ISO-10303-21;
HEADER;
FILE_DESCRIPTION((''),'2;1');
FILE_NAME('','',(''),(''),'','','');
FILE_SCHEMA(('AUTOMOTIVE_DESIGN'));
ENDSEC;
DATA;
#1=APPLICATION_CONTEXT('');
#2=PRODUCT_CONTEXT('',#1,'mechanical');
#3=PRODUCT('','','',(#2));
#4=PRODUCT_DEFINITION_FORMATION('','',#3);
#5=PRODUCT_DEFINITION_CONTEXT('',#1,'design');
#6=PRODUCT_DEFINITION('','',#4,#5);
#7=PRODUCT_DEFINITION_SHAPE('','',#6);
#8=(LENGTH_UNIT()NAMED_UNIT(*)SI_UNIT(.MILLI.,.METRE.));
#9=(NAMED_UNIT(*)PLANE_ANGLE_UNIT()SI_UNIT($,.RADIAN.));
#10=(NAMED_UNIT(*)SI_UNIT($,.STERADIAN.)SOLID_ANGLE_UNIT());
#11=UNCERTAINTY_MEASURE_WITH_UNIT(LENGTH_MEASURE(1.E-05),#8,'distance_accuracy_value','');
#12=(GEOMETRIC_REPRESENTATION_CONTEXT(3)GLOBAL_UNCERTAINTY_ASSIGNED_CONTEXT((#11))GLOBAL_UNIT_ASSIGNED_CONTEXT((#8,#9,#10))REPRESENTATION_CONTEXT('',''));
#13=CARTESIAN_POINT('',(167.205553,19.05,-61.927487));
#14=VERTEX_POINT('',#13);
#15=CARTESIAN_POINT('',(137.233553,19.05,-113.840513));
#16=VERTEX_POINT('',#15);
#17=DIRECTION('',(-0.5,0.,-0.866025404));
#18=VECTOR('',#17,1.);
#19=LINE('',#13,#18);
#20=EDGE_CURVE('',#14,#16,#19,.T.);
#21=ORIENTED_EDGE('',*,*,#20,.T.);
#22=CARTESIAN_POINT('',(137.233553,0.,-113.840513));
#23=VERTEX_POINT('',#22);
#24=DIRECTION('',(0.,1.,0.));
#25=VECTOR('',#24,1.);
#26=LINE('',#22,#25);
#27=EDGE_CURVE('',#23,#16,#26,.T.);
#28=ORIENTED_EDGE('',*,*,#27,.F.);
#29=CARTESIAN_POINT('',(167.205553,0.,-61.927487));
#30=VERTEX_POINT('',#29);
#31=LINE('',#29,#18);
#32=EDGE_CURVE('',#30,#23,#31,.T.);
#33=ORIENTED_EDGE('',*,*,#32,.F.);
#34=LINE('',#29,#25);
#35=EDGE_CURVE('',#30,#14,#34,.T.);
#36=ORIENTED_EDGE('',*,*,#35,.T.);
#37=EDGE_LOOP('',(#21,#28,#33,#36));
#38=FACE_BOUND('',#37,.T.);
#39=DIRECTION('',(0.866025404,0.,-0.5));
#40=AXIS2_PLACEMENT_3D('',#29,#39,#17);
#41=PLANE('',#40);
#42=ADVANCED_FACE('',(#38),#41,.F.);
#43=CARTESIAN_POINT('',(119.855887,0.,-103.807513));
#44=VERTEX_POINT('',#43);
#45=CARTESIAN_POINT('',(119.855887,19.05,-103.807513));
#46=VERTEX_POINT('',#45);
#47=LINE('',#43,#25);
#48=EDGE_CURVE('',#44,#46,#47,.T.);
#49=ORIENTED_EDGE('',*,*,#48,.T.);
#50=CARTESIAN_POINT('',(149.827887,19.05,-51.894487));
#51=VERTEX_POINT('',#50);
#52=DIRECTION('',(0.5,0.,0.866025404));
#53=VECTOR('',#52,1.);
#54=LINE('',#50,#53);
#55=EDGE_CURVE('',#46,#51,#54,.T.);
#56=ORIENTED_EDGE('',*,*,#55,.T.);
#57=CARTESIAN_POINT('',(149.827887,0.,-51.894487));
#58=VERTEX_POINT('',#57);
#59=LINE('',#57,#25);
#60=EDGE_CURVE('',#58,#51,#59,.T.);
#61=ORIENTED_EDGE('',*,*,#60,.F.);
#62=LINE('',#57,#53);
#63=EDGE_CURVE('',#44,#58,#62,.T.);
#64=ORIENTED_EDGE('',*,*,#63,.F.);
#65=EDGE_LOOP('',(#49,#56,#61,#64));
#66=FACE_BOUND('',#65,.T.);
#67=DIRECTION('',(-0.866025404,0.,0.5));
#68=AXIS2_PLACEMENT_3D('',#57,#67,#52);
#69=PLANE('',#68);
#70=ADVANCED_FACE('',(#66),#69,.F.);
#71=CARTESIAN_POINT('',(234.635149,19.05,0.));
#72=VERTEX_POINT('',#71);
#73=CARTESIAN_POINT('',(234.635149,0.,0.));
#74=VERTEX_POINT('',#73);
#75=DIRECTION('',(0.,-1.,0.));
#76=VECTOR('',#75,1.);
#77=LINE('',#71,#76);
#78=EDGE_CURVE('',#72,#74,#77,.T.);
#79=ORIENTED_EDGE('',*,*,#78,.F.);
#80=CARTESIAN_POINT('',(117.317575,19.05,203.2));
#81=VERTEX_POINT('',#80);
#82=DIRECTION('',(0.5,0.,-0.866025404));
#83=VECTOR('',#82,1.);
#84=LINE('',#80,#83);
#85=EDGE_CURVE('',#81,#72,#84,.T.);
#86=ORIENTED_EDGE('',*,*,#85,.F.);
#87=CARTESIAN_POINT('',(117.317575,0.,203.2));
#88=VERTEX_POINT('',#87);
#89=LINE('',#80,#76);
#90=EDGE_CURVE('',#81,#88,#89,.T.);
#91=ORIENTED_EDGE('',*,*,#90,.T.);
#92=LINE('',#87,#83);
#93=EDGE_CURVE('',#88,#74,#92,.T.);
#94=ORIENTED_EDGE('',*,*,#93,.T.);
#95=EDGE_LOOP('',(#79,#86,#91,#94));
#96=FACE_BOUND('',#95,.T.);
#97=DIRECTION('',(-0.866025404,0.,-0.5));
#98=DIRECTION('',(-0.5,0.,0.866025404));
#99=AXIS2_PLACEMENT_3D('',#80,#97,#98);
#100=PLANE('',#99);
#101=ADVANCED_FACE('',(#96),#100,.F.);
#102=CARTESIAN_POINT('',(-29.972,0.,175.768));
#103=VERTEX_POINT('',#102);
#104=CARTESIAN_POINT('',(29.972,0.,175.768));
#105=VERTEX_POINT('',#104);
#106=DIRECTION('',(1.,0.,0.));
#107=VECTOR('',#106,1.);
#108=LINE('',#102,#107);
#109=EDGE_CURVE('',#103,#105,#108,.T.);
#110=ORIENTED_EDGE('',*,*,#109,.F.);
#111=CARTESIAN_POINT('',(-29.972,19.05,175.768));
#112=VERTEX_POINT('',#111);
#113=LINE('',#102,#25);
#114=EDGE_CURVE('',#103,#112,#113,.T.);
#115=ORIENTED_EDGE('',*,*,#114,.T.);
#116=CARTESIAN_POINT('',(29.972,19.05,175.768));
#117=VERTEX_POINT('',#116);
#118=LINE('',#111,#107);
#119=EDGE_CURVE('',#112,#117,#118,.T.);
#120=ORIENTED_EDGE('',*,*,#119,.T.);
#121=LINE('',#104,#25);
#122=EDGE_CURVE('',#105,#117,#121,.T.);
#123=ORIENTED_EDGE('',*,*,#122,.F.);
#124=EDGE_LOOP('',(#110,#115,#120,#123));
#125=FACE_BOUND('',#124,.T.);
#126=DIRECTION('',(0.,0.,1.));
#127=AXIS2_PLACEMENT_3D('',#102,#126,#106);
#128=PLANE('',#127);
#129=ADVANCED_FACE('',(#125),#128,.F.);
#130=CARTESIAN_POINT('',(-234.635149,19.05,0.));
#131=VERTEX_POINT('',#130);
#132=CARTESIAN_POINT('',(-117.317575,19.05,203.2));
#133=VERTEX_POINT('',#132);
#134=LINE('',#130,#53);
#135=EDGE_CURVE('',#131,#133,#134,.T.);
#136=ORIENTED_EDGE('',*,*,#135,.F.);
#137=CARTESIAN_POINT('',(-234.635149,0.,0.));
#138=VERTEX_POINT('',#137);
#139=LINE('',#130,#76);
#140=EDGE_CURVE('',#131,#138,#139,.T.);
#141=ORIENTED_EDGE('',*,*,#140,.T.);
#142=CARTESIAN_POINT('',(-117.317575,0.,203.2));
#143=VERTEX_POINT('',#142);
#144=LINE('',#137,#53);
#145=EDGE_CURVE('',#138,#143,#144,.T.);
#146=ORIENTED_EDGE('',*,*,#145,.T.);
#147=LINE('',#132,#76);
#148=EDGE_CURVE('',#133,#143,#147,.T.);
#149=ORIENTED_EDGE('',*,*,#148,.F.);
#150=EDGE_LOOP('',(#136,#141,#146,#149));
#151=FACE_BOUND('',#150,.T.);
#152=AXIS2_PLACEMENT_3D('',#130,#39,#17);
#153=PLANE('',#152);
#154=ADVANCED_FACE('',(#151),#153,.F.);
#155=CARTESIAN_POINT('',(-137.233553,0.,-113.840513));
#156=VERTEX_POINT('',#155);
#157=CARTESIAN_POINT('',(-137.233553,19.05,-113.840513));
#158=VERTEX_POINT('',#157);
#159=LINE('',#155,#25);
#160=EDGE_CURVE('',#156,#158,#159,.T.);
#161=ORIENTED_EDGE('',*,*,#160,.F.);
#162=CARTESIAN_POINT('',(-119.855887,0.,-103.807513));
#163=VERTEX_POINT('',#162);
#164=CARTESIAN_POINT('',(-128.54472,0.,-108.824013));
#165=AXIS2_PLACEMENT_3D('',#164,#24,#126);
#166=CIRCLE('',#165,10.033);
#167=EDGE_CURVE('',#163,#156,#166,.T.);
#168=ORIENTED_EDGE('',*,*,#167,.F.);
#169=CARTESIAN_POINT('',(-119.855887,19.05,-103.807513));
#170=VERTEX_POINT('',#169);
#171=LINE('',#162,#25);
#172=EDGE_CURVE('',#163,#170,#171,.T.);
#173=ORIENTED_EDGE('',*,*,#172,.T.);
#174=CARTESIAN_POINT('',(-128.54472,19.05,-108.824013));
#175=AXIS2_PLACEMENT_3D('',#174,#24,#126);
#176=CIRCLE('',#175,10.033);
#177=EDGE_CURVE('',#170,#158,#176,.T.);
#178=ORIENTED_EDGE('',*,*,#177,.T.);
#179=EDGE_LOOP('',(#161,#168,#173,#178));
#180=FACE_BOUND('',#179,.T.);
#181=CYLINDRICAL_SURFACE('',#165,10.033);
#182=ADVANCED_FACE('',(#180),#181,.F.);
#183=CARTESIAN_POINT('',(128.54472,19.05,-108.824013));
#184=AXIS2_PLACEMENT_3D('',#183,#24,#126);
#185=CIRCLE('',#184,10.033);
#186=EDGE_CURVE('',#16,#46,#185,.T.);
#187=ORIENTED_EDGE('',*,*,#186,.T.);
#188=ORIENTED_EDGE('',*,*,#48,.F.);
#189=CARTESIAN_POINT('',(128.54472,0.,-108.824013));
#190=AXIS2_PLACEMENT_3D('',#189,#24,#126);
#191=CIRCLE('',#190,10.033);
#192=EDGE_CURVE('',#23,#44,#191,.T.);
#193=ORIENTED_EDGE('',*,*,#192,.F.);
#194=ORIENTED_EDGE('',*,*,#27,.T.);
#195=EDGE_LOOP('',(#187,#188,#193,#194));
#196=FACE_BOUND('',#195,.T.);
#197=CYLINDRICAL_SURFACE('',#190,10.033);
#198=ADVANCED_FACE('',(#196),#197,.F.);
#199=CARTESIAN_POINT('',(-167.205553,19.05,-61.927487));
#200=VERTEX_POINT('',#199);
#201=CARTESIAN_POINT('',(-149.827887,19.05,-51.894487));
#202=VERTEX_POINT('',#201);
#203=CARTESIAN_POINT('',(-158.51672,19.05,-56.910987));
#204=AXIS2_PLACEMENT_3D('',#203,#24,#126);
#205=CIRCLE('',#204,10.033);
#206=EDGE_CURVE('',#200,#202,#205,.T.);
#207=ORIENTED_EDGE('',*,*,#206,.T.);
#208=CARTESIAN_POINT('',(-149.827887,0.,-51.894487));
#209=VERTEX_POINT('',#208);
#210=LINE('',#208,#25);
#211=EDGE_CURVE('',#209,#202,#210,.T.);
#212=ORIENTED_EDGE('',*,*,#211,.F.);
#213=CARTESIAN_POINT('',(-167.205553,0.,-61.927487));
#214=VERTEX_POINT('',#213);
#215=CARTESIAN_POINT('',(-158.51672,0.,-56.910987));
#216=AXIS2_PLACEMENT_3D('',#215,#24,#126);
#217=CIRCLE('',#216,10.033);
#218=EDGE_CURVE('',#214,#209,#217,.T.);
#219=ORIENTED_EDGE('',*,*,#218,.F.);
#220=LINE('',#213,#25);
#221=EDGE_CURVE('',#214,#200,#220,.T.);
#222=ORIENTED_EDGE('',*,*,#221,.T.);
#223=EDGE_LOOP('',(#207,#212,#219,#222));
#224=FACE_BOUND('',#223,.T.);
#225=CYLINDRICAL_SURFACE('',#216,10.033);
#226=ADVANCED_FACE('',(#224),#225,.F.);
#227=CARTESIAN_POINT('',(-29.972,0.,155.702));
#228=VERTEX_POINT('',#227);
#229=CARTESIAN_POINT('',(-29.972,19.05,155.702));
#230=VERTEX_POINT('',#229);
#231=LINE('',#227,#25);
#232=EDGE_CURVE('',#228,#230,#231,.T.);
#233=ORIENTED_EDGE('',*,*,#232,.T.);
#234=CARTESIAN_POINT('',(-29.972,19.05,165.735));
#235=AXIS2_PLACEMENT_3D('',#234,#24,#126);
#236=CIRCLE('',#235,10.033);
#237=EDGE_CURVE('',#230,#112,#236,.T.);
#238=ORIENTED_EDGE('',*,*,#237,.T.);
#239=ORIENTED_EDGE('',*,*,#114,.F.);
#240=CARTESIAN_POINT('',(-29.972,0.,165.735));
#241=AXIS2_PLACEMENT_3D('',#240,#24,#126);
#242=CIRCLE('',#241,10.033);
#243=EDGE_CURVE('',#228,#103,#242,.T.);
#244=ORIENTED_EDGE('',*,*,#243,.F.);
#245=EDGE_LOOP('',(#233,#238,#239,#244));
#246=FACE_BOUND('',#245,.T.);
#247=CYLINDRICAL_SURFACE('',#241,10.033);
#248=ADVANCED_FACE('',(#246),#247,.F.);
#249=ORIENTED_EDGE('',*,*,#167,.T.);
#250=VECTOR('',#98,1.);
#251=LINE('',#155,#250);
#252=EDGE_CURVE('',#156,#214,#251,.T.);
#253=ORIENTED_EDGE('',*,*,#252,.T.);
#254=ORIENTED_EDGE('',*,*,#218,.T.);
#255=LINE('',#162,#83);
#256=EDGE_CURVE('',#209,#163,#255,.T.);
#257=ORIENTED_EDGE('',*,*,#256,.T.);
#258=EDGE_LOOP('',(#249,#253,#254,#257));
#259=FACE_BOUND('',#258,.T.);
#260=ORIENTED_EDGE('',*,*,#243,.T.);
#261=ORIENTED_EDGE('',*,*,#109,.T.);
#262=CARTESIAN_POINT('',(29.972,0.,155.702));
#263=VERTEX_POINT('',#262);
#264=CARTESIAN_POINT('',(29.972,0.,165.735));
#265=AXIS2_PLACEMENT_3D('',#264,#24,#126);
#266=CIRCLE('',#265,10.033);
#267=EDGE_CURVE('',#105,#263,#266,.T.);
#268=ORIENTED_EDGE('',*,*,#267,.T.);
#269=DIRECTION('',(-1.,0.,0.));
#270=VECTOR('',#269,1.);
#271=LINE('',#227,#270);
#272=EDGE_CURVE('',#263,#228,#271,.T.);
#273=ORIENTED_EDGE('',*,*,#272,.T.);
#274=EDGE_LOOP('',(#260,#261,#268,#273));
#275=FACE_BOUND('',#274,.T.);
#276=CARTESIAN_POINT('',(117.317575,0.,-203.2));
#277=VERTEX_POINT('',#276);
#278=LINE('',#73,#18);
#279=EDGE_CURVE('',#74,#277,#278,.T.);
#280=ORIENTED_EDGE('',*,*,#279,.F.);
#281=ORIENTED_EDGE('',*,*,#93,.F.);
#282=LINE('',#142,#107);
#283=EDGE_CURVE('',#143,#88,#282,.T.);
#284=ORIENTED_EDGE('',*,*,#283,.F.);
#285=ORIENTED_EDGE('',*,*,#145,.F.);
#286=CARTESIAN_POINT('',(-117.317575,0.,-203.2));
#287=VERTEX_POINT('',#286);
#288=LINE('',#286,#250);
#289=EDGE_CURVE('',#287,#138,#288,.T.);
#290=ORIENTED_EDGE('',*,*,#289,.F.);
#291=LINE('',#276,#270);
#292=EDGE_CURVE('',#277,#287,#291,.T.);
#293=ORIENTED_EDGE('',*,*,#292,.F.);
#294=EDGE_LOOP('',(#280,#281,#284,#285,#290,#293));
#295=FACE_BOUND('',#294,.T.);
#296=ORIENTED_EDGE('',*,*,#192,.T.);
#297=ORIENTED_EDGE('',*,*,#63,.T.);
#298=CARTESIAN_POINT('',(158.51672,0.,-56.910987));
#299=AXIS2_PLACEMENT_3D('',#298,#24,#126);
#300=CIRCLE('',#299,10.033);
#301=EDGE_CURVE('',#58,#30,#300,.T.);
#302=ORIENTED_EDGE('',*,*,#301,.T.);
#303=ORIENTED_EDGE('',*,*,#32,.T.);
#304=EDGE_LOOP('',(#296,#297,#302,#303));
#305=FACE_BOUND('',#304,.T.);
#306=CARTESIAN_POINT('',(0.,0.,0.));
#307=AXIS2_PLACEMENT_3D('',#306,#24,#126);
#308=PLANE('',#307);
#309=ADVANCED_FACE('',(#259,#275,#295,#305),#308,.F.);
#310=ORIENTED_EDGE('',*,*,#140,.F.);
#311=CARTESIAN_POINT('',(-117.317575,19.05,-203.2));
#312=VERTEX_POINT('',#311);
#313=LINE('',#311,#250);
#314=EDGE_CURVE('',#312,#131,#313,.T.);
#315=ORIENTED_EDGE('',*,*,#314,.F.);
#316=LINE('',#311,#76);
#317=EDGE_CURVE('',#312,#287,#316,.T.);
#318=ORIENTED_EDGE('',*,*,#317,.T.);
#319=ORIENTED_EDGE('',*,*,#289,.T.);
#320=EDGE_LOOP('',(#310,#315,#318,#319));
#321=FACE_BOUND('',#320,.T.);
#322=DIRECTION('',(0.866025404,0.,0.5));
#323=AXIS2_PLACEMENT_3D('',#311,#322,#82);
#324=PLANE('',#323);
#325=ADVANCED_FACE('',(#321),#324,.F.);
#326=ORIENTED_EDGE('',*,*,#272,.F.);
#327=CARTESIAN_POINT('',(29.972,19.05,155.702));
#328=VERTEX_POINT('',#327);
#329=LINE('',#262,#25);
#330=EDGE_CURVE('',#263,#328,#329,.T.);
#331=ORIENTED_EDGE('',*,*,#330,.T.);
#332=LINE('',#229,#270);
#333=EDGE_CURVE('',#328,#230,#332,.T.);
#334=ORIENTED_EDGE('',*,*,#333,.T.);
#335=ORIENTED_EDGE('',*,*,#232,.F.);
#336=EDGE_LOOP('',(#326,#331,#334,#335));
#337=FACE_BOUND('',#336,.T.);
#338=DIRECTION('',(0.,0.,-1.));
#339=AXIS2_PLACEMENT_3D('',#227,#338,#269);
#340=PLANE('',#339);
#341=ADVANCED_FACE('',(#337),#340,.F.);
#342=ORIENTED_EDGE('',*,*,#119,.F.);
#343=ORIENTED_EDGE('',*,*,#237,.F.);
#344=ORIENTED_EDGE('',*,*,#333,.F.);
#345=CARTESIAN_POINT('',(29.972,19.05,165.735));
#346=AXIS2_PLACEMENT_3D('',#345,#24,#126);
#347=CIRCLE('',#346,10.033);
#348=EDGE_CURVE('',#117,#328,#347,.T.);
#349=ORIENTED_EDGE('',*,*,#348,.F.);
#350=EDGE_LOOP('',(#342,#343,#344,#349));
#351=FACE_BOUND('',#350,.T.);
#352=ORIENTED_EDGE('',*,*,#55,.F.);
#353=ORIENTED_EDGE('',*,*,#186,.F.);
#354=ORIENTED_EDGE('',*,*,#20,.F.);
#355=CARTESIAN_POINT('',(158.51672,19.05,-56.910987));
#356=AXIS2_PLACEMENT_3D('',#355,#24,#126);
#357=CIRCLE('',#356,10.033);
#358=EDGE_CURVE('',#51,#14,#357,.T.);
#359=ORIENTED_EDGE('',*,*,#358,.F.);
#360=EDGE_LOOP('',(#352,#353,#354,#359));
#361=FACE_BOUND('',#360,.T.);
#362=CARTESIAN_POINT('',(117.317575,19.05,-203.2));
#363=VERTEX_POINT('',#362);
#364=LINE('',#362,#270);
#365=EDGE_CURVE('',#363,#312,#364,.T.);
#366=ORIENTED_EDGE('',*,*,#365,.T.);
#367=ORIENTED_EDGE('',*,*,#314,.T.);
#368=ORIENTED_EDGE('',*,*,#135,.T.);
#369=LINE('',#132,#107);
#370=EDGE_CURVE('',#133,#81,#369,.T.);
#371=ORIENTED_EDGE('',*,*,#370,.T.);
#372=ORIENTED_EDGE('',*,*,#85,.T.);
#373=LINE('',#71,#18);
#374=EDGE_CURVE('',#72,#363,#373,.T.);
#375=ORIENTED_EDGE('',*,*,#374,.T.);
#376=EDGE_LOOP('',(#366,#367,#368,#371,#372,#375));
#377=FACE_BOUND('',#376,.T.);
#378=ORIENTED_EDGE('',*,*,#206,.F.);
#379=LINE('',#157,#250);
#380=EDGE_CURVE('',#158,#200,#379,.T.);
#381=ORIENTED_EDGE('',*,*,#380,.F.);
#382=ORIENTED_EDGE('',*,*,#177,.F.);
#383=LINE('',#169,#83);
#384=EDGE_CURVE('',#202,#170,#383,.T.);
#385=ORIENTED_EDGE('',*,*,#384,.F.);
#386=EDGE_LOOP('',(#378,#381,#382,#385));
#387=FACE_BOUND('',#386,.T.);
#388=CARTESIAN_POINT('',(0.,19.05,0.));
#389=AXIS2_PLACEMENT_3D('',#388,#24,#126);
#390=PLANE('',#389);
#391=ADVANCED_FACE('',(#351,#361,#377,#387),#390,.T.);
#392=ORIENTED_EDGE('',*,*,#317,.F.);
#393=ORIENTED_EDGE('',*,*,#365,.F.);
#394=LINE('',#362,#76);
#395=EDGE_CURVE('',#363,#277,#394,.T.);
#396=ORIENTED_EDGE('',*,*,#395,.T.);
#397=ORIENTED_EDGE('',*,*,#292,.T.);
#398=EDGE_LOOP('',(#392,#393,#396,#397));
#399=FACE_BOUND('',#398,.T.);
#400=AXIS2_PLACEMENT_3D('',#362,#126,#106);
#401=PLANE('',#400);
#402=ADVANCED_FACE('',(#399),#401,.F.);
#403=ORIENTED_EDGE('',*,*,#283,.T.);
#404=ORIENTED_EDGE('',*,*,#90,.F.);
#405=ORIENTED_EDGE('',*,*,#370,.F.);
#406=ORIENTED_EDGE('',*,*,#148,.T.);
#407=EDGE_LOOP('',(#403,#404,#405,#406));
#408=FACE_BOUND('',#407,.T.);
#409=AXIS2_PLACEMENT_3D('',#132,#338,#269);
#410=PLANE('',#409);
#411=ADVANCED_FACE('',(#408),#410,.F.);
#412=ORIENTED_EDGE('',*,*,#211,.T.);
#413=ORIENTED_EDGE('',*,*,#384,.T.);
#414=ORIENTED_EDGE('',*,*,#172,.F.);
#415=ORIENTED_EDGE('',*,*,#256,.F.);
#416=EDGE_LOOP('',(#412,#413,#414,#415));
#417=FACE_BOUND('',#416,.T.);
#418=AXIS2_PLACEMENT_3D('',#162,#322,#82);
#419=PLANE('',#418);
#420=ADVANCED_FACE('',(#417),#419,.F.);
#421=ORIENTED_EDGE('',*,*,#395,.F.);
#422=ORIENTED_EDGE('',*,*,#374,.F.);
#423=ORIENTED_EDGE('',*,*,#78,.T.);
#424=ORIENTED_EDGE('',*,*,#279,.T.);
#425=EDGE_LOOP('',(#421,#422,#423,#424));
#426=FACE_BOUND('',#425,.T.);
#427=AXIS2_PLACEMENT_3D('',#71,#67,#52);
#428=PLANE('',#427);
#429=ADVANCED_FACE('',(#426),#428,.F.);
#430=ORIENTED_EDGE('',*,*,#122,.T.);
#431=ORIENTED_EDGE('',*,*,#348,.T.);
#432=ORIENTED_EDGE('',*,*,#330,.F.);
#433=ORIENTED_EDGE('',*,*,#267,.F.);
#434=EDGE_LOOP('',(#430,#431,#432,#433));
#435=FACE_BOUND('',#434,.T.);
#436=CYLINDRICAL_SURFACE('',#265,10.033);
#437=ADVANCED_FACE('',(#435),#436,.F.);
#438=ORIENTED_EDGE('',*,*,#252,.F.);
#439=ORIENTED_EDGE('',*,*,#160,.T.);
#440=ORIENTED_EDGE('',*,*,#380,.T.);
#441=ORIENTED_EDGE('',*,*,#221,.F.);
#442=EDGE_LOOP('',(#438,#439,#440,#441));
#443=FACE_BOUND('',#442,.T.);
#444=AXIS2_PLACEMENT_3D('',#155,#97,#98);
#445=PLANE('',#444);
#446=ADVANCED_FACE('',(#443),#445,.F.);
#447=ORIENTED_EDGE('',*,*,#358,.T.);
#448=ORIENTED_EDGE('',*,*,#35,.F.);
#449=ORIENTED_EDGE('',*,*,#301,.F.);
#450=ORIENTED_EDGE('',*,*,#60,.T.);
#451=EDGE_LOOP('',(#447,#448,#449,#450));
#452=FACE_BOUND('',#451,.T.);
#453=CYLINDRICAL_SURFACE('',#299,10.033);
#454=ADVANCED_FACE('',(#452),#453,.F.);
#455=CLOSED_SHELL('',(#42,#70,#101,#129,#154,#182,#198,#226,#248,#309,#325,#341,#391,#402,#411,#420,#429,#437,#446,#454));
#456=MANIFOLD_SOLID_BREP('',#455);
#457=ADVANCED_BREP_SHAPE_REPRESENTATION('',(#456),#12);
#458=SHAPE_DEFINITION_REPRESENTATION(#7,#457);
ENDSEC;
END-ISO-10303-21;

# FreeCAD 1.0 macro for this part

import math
import FreeCAD as App
import Part
import Sketcher

V = App.Vector
Q = App.Units.Quantity

doc = App.newDocument("Part")
body = doc.addObject("PartDesign::Body", "Body")

# Sketch on XZ plane
sketch1 = body.newObject("Sketcher::SketchObject", "Sketch")
sketch1.AttachmentSupport = (doc.getObject("XZ_Plane"), [""])
sketch1.MapMode = "FlatFace"
sketch1.addGeometry([
    Part.LineSegment(V(-234.635149, 0, 0), V(-117.317575, 203.2, 0)),  # 0
    Part.LineSegment(V(-117.317575, 203.2, 0), V(117.317575, 203.2, 0)),  # 1
    Part.LineSegment(V(117.317575, 203.2, 0), V(234.635149, 0, 0)),  # 2
    Part.LineSegment(V(234.635149, 0, 0), V(117.317575, -203.2, 0)),  # 3
    Part.LineSegment(V(117.317575, -203.2, 0), V(-117.317575, -203.2, 0)),  # 4
    Part.LineSegment(V(-117.317575, -203.2, 0), V(-234.635149, 0, 0)),  # 5
], False)
sketch1.addConstraint([
    Sketcher.Constraint("Coincident", 0, 2, 1, 1),
    Sketcher.Constraint("Coincident", 1, 2, 2, 1),
    Sketcher.Constraint("Coincident", 2, 2, 3, 1),
    Sketcher.Constraint("Coincident", 3, 2, 4, 1),
    Sketcher.Constraint("Coincident", 4, 2, 5, 1),
    Sketcher.Constraint("Coincident", 5, 2, 0, 1),
    Sketcher.Constraint("Horizontal", 1),
    Sketcher.Constraint("Horizontal", 4),
    Sketcher.Constraint("Symmetric", 0, 2, 3, 2, -1, 1),
    Sketcher.Constraint("Symmetric", 2, 2, 5, 2, -1, 1),
    Sketcher.Constraint("PointOnObject", 2, 2, -1),
    Sketcher.Constraint("Parallel", 2, 5),
    Sketcher.Constraint("Vertical", 1, 2, 3, 2),
    Sketcher.Constraint("DistanceY", -1, 1, 0, 2, Q("8 in")),
    Sketcher.Constraint("Angle", 0, Q("60 deg")),
    Sketcher.Constraint("DistanceX", 1, 1, 1, 2, Q("234.635149 mm")),
])
pad1 = body.newObject("PartDesign::Pad", "Pad")
pad1.Profile = sketch1
pad1.Length = Q("0.75 in")
pad1.Reversed = True

# Sketch on XZ plane
sketch2 = body.newObject("Sketcher::SketchObject", "Sketch001")
sketch2.AttachmentSupport = (doc.getObject("XZ_Plane"), [""])
sketch2.MapMode = "FlatFace"
sketch2.AttachmentOffset = App.Placement(V(0, 0, -0.75 * 25.4), App.Rotation())
sketch2.addGeometry([
    Part.LineSegment(V(29.972, 155.702, 0), V(-29.972, 155.702, 0)),  # 0
    Part.ArcOfCircle(Part.Circle(V(-29.972, 165.735, 0), V(0, 0, 1), 10.033), math.radians(90), math.radians(270)),  # 1
    Part.LineSegment(V(-29.972, 175.768, 0), V(29.972, 175.768, 0)),  # 2
    Part.ArcOfCircle(Part.Circle(V(29.972, 165.735, 0), V(0, 0, 1), 10.033), math.radians(-90), math.radians(90)),  # 3
    Part.LineSegment(V(-149.827887, -51.894487, 0), V(-119.855887, -103.807513, 0)),  # 4
    Part.ArcOfCircle(Part.Circle(V(-128.54472, -108.824013, 0), V(0, 0, 1), 10.033), math.radians(-150), math.radians(30)),  # 5
    Part.LineSegment(V(-137.233553, -113.840513, 0), V(-167.205553, -61.927487, 0)),  # 6
    Part.ArcOfCircle(Part.Circle(V(-158.51672, -56.910987, 0), V(0, 0, 1), 10.033), math.radians(30), math.radians(210)),  # 7
    Part.LineSegment(V(119.855887, -103.807513, 0), V(149.827887, -51.894487, 0)),  # 8
    Part.ArcOfCircle(Part.Circle(V(158.51672, -56.910987, 0), V(0, 0, 1), 10.033), math.radians(-30), math.radians(150)),  # 9
    Part.LineSegment(V(167.205553, -61.927487, 0), V(137.233553, -113.840513, 0)),  # 10
    Part.ArcOfCircle(Part.Circle(V(128.54472, -108.824013, 0), V(0, 0, 1), 10.033), math.radians(150), math.radians(330)),  # 11
], False)
sketch2.addConstraint([
    Sketcher.Constraint("Tangent", 0, 2, 1, 2),
    Sketcher.Constraint("Tangent", 1, 1, 2, 1),
    Sketcher.Constraint("Tangent", 2, 2, 3, 2),
    Sketcher.Constraint("Tangent", 3, 1, 0, 1),
    Sketcher.Constraint("Tangent", 4, 2, 5, 2),
    Sketcher.Constraint("Tangent", 5, 1, 6, 1),
    Sketcher.Constraint("Tangent", 6, 2, 7, 2),
    Sketcher.Constraint("Tangent", 7, 1, 4, 1),
    Sketcher.Constraint("Tangent", 8, 2, 9, 2),
    Sketcher.Constraint("Tangent", 9, 1, 10, 1),
    Sketcher.Constraint("Tangent", 10, 2, 11, 2),
    Sketcher.Constraint("Tangent", 11, 1, 8, 1),
    Sketcher.Constraint("Horizontal", 0),
    Sketcher.Constraint("Horizontal", 2),
    Sketcher.Constraint("Equal", 3, 5),
    Sketcher.Constraint("Equal", 5, 7),
    Sketcher.Constraint("Equal", 7, 9),
    Sketcher.Constraint("Equal", 9, 11),
    Sketcher.Constraint("Symmetric", 7, 3, 9, 3, -2),
    Sketcher.Constraint("Symmetric", 5, 3, 11, 3, -2),
    Sketcher.Constraint("Angle", 4, Q("-60 deg")),
    Sketcher.Constraint("Radius", 1, Q("0.395 in")),
    Sketcher.Constraint("DistanceX", 0, 2, 0, 1, Q("2.36 in")),
    Sketcher.Constraint("Distance", 4, Q("2.36 in")),
    Sketcher.Constraint("DistanceX", 1, 3, -1, 1, Q("1.18 in")),
    Sketcher.Constraint("DistanceY", -1, 1, 0, 2, Q("6.13 in")),
    Sketcher.Constraint("DistanceX", 5, 3, -1, 1, Q("128.54472 mm")),
    Sketcher.Constraint("DistanceY", 5, 3, -1, 1, Q("108.824013 mm")),
])
pocket1 = body.newObject("PartDesign::Pocket", "Pocket")
pocket1.Profile = sketch2
pocket1.Type = "ThroughAll"
pocket1.Reversed = True

doc.recompute()
